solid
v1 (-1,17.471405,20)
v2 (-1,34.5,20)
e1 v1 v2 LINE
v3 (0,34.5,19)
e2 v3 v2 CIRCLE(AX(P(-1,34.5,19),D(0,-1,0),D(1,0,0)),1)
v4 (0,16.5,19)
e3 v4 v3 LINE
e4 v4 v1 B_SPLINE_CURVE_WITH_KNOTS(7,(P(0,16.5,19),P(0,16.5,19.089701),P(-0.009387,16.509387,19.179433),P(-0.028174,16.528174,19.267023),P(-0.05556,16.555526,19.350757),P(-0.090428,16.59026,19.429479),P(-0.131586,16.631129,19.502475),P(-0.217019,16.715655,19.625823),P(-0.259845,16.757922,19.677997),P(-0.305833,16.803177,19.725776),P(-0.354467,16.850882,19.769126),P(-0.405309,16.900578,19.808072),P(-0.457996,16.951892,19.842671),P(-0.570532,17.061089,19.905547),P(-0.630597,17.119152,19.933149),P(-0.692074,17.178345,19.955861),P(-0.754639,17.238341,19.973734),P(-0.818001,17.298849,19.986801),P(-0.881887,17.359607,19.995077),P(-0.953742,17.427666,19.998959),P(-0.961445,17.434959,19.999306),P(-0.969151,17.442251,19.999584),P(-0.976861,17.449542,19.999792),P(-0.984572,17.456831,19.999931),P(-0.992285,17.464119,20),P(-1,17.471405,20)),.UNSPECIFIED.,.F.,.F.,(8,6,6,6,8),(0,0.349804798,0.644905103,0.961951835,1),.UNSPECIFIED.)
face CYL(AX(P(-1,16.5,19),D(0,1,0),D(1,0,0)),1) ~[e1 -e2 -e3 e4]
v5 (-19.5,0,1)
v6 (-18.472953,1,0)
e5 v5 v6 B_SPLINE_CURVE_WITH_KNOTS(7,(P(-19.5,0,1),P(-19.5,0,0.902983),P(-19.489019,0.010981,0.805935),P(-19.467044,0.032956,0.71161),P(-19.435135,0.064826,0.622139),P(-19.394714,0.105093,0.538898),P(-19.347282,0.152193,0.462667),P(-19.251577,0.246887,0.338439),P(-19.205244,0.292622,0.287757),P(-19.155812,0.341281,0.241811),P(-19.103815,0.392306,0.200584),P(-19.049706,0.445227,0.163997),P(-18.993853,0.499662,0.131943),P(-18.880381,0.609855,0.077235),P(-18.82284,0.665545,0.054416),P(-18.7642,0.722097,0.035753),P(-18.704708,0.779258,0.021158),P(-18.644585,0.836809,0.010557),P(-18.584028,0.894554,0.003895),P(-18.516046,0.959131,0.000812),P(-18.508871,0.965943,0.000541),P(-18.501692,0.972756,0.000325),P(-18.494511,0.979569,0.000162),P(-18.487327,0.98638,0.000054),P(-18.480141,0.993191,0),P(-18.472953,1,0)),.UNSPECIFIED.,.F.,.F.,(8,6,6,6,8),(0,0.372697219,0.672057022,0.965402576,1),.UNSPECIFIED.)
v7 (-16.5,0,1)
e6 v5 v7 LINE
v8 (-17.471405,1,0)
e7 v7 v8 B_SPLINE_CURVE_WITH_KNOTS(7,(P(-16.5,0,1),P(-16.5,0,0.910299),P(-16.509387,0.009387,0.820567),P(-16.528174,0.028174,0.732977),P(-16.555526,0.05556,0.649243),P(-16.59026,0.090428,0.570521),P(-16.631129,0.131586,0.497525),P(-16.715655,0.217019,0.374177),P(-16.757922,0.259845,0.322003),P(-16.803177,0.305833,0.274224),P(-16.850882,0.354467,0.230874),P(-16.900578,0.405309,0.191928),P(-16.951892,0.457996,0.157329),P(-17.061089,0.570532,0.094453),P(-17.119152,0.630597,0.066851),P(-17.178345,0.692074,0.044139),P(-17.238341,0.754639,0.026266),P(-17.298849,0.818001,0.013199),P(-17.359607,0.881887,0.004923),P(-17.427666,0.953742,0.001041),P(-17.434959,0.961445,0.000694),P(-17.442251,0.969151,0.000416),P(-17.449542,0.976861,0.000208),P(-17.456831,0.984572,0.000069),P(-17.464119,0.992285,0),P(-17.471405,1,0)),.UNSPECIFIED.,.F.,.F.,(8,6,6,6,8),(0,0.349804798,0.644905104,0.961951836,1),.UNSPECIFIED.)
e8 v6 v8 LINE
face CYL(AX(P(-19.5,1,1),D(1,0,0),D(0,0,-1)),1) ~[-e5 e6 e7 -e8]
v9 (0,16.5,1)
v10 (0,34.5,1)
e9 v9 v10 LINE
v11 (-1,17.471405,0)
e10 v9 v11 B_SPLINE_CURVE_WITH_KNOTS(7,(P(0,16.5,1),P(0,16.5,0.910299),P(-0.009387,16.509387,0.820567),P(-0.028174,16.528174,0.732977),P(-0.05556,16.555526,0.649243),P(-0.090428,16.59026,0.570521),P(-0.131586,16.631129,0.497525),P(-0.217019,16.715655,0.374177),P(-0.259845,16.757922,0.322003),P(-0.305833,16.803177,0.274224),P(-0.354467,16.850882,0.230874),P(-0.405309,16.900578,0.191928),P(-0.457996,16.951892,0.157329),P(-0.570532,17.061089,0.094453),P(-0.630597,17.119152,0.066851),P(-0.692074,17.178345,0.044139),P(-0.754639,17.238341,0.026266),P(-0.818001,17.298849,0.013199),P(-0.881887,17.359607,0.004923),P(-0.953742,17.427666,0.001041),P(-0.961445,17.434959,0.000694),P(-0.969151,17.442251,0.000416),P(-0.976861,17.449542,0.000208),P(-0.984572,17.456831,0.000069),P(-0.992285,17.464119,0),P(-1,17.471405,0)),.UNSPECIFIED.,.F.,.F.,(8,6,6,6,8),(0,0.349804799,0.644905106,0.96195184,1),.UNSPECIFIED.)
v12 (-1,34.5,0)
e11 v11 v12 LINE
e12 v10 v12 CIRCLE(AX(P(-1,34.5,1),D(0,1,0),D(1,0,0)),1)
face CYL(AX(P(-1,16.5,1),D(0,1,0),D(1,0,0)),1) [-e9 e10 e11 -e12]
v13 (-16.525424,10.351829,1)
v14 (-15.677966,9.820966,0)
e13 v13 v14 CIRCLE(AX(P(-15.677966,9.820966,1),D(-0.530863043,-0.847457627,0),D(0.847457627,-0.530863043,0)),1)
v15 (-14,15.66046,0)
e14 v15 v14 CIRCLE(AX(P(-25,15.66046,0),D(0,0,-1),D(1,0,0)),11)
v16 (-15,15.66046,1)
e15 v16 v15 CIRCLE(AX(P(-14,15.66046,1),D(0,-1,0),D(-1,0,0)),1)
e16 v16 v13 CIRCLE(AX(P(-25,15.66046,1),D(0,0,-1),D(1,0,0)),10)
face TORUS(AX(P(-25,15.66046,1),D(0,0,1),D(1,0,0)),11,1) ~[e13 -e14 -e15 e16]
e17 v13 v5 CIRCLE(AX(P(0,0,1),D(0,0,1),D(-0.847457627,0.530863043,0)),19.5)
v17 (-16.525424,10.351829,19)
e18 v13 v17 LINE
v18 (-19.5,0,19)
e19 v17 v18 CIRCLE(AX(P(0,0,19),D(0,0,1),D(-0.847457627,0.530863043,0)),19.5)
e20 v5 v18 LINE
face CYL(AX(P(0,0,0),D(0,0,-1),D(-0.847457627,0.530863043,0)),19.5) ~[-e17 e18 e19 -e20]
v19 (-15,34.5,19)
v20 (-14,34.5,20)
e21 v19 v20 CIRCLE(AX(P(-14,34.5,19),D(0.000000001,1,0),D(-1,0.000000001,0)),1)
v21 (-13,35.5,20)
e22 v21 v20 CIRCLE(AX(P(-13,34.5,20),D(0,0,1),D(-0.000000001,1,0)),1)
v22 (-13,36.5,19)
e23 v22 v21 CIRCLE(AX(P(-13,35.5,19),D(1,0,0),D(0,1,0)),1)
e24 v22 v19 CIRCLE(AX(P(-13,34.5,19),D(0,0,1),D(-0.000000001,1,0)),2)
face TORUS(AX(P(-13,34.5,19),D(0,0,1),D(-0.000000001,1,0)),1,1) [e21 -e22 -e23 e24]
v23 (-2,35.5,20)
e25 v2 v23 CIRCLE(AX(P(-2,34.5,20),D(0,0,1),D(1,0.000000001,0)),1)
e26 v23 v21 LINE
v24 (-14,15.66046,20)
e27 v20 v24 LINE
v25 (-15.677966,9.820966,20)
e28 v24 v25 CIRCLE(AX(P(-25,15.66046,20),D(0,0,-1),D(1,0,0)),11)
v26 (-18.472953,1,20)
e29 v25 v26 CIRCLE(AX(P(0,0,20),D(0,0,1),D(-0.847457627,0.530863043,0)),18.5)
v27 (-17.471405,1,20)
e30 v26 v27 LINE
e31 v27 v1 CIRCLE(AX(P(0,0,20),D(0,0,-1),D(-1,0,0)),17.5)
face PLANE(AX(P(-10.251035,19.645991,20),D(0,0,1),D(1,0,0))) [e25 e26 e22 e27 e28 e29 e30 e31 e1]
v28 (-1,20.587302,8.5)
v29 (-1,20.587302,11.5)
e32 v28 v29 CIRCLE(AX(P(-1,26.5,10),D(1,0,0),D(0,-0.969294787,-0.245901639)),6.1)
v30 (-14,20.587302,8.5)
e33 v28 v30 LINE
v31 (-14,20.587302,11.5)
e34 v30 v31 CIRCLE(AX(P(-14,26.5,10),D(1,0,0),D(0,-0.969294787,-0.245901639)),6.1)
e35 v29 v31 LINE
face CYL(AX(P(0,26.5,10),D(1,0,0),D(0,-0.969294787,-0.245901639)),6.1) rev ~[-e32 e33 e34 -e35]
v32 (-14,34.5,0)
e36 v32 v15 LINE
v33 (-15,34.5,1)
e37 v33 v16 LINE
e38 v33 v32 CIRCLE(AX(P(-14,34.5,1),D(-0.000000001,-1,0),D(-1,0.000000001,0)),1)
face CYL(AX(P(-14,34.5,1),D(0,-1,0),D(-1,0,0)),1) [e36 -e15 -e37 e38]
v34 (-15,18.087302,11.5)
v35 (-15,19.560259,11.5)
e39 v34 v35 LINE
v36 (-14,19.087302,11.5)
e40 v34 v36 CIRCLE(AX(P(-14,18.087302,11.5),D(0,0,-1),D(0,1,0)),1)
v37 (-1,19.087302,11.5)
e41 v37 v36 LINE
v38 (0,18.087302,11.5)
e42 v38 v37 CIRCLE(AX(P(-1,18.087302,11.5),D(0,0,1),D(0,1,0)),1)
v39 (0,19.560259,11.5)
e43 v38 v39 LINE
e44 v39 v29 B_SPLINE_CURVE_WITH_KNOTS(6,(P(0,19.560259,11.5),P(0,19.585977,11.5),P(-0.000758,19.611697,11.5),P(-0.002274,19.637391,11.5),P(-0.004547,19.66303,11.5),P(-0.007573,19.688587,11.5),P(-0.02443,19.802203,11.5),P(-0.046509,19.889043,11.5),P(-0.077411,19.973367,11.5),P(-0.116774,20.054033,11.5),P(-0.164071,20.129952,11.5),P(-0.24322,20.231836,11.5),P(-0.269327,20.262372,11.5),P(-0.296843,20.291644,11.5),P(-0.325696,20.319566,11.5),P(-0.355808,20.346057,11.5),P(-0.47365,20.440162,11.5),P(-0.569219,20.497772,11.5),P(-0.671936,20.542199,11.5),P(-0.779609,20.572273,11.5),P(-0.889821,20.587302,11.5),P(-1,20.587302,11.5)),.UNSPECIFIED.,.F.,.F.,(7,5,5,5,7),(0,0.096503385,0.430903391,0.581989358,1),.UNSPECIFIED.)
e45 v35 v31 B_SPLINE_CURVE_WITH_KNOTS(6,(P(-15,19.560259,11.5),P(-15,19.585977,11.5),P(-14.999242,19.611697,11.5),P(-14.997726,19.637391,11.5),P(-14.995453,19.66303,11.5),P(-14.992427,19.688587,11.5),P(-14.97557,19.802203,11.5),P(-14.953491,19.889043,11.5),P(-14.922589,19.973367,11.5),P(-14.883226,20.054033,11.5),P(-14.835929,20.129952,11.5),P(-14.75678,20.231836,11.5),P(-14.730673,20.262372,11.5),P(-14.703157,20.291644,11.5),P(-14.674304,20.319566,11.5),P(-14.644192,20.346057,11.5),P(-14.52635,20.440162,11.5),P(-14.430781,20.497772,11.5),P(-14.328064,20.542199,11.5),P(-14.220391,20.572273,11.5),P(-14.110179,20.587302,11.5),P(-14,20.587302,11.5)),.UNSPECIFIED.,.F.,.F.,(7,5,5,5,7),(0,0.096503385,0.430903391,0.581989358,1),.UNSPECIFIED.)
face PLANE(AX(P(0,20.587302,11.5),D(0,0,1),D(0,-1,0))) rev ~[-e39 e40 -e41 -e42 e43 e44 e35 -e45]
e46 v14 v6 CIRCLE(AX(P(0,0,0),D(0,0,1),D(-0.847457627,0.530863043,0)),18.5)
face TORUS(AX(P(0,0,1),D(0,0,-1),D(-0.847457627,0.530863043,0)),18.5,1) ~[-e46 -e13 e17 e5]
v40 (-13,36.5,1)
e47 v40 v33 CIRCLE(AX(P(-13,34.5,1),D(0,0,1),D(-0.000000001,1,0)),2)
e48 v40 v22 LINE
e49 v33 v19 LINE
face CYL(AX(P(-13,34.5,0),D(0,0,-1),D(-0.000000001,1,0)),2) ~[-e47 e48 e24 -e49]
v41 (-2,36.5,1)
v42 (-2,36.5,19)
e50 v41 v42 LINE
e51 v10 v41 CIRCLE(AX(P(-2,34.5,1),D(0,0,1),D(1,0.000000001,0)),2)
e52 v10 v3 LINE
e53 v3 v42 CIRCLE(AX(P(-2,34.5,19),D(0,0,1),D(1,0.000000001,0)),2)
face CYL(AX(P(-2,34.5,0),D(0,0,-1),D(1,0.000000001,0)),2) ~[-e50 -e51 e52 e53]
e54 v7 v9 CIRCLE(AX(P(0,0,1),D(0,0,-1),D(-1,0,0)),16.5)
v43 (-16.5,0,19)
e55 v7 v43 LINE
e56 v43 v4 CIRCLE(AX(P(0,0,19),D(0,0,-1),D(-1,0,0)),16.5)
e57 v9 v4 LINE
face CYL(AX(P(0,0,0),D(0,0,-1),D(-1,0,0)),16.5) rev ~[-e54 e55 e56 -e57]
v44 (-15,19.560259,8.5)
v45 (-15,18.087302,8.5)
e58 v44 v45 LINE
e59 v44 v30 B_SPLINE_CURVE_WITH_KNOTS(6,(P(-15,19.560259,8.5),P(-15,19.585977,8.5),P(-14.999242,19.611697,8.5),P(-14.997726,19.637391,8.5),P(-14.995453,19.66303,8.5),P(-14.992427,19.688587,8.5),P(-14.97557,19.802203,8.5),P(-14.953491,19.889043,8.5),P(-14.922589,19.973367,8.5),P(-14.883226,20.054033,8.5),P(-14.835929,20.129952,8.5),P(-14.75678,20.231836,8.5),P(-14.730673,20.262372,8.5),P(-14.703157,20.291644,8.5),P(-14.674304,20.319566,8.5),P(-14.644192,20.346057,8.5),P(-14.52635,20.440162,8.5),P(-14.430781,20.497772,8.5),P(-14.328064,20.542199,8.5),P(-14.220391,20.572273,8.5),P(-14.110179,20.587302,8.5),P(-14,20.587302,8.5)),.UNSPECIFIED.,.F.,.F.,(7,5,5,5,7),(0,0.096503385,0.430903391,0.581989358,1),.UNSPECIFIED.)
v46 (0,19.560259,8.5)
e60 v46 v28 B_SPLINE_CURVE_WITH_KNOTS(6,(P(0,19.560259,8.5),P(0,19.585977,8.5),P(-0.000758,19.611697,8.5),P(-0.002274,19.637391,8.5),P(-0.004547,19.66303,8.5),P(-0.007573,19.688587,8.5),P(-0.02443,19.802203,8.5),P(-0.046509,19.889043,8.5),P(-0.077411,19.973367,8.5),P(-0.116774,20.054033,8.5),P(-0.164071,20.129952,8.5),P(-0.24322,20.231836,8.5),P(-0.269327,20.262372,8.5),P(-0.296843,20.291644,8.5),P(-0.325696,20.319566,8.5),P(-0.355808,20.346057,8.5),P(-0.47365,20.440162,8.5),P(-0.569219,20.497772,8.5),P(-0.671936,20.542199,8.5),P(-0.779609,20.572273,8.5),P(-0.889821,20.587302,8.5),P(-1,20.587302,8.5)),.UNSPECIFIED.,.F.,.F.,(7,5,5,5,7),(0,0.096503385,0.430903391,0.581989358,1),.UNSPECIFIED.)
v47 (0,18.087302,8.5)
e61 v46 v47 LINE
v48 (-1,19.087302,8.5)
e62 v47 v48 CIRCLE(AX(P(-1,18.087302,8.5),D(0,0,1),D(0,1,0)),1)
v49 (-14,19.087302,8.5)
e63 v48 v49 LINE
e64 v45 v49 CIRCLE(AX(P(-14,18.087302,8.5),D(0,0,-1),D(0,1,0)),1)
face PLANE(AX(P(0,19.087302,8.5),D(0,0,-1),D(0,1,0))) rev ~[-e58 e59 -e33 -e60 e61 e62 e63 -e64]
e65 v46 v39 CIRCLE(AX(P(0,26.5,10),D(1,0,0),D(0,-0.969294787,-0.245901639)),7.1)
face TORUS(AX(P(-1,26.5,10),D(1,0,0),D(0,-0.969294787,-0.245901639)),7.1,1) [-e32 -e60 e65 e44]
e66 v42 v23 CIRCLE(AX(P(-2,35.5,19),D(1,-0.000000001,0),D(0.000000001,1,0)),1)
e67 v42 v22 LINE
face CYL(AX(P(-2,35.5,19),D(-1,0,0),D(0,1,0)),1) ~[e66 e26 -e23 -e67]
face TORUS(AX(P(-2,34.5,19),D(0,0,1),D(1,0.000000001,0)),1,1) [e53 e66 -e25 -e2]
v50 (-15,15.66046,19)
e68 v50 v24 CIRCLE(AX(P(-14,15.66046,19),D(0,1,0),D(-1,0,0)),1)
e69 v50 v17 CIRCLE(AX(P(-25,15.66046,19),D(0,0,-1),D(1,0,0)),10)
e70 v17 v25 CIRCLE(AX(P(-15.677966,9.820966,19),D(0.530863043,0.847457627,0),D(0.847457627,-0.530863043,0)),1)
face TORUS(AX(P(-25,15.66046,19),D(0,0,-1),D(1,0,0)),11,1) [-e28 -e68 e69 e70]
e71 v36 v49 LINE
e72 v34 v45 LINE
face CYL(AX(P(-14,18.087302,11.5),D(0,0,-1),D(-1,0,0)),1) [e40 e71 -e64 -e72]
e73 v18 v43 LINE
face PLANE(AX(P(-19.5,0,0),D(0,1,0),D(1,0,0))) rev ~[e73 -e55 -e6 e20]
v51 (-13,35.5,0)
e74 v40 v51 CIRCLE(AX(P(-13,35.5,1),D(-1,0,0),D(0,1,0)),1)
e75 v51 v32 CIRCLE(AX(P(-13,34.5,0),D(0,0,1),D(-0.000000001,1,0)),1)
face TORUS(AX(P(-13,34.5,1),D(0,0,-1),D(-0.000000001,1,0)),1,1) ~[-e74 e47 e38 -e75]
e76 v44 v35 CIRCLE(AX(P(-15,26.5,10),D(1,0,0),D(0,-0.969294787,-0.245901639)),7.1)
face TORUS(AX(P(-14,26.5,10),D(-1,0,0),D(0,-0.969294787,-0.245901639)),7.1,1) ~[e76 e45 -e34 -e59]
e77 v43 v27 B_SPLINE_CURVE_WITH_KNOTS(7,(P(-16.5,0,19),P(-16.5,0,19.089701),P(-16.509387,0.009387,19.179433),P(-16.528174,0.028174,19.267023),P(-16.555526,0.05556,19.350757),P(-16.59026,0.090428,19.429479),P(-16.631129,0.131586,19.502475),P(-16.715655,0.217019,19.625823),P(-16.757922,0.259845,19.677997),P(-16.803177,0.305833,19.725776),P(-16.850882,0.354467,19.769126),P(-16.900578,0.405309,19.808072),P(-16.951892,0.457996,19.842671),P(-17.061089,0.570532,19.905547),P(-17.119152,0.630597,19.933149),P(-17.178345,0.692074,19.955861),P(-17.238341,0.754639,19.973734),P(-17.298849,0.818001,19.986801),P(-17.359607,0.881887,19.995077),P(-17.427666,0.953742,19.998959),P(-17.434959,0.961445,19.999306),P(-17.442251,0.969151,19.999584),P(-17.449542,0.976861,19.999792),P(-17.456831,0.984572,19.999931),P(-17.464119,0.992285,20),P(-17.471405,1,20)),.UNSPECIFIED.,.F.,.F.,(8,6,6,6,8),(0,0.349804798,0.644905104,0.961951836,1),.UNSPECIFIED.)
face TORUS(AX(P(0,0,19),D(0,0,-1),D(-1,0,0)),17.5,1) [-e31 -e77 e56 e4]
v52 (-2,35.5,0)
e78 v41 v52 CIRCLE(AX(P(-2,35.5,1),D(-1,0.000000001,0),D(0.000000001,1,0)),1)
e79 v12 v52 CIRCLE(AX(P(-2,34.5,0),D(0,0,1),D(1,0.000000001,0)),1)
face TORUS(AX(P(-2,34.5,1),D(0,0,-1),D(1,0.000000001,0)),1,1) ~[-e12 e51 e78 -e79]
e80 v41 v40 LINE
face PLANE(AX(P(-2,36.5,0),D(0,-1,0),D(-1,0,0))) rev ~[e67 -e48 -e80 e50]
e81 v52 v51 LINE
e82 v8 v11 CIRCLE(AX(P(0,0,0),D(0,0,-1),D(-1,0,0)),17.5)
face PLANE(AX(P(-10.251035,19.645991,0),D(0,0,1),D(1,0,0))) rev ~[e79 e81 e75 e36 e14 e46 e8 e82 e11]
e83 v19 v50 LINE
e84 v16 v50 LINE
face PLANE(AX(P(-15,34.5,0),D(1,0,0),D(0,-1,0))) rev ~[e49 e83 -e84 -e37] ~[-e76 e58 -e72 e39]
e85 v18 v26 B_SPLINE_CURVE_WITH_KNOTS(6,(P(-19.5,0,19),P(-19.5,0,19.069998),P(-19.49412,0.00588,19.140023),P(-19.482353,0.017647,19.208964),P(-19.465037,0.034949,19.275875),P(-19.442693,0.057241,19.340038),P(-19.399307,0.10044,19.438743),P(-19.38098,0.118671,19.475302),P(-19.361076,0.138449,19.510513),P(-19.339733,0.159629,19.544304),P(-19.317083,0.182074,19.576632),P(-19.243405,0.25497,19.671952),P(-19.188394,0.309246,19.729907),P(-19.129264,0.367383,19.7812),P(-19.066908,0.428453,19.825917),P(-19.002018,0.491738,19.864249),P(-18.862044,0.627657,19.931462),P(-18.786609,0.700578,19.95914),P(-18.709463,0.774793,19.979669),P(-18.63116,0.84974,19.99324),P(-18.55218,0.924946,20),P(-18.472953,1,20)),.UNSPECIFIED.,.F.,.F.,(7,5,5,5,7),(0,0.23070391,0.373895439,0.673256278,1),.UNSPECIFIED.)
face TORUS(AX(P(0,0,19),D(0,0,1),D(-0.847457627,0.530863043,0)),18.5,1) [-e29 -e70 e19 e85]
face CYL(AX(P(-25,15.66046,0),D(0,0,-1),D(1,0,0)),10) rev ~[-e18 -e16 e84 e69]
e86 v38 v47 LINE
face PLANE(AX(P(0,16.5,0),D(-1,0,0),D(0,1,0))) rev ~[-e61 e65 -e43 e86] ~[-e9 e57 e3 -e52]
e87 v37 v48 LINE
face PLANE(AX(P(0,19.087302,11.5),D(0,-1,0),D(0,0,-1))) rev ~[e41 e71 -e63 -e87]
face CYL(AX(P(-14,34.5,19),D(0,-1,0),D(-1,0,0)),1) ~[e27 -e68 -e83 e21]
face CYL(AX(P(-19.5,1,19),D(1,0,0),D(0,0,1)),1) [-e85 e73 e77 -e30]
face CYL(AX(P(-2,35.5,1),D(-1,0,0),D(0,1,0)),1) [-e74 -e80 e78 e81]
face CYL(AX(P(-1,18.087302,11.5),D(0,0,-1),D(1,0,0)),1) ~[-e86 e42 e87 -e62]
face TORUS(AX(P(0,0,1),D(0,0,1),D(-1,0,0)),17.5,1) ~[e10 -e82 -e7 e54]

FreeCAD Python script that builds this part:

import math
import FreeCAD as App
import Part
import Sketcher

V = App.Vector


def edges_at(feature, points):
    """Names of the edges that pass closest to the given points."""
    edges = feature.Shape.Edges
    near = lambda p: min(range(len(edges)), key=lambda i: edges[i].distToShape(Part.Vertex(*p))[0])
    return sorted({f"Edge{near(p) + 1}" for p in points})

doc = App.newDocument("Part")
body = doc.addObject("PartDesign::Body", "Body")

sketch1 = body.newObject("Sketcher::SketchObject", "Sketch")
sketch1.AttachmentSupport = (doc.getObject("XY_Plane"), [""])
sketch1.MapMode = "FlatFace"
sketch1.addGeometry(Part.LineSegment(V(-19.5, 0, 0), V(-16.5, 0, 0)), False)
sketch1.addGeometry(Part.ArcOfCircle(Part.Circle(V(0, 0, 0), V(0, 0, 1), 16.5), math.radians(90), math.radians(180)), False)
sketch1.addGeometry(Part.LineSegment(V(0, 16.5, 0), V(0, 34.5, 0)), False)
sketch1.addGeometry(Part.ArcOfCircle(Part.Circle(V(-2, 34.5, 0), V(0, 0, 1), 2), math.radians(0), math.radians(90)), False)
sketch1.addGeometry(Part.LineSegment(V(-2, 36.5, 0), V(-13, 36.5, 0)), False)
sketch1.addGeometry(Part.ArcOfCircle(Part.Circle(V(-13, 34.5, 0), V(0, 0, 1), 2), math.radians(90), math.radians(180)), False)
sketch1.addGeometry(Part.LineSegment(V(-15, 34.5, 0), V(-15, 15.7, 0)), False)
sketch1.addGeometry(Part.ArcOfCircle(Part.Circle(V(-25, 15.7, 0), V(0, 0, 1), 10), math.radians(-32), math.radians(0)), False)
sketch1.addGeometry(Part.ArcOfCircle(Part.Circle(V(0, 0, 0), V(0, 0, 1), 19.5), math.radians(148), math.radians(180)), False)
sketch1.addConstraint(Sketcher.Constraint("Coincident", 0, 2, 1, 2))
sketch1.addConstraint(Sketcher.Constraint("Coincident", 1, 1, 2, 1))
sketch1.addConstraint(Sketcher.Constraint("Tangent", 2, 2, 3, 1))
sketch1.addConstraint(Sketcher.Constraint("Tangent", 3, 2, 4, 1))
sketch1.addConstraint(Sketcher.Constraint("Tangent", 4, 2, 5, 1))
sketch1.addConstraint(Sketcher.Constraint("Tangent", 5, 2, 6, 1))
sketch1.addConstraint(Sketcher.Constraint("Tangent", 6, 2, 7, 2))
sketch1.addConstraint(Sketcher.Constraint("Tangent", 7, 1, 8, 1))
sketch1.addConstraint(Sketcher.Constraint("Coincident", 8, 2, 0, 1))
sketch1.addConstraint(Sketcher.Constraint("Horizontal", 0))
sketch1.addConstraint(Sketcher.Constraint("Vertical", 2))
sketch1.addConstraint(Sketcher.Constraint("Horizontal", 4))
sketch1.addConstraint(Sketcher.Constraint("Vertical", 6))
sketch1.addConstraint(Sketcher.Constraint("Coincident", 1, 3, -1, 1))
sketch1.addConstraint(Sketcher.Constraint("Coincident", 8, 3, -1, 1))
sketch1.addConstraint(Sketcher.Constraint("Equal", 3, 5))
sketch1.addConstraint(Sketcher.Constraint("PointOnObject", 0, 2, -1))
sketch1.addConstraint(Sketcher.Constraint("PointOnObject", 1, 1, -2))
sketch1.addConstraint(Sketcher.Constraint("Radius", 3, 2.0))
sketch1.addConstraint(Sketcher.Constraint("Radius", 7, 10.0))
sketch1.addConstraint(Sketcher.Constraint("Radius", 1, 16.5))
sketch1.addConstraint(Sketcher.Constraint("Radius", 8, 19.5))
sketch1.addConstraint(Sketcher.Constraint("DistanceX", 4, 2, 4, 1, 11.0))
sketch1.addConstraint(Sketcher.Constraint("DistanceY", 2, 1, 2, 2, 18.0))
pad1 = body.newObject("PartDesign::Pad", "Pad")
pad1.Profile = sketch1
pad1.Length = 20

sketch2 = body.newObject("Sketcher::SketchObject", "Sketch001")
sketch2.AttachmentSupport = (doc.getObject("YZ_Plane"), [""])
sketch2.MapMode = "FlatFace"
sketch2.addGeometry(Part.LineSegment(V(19.1, 11.5, 0), V(19.1, 8.5, 0)), False)
sketch2.addGeometry(Part.LineSegment(V(19.1, 8.5, 0), V(20.6, 8.5, 0)), False)
sketch2.addGeometry(Part.ArcOfCircle(Part.Circle(V(26.5, 10, 0), V(0, 0, 1), 6.1), math.radians(-166), math.radians(166)), False)
sketch2.addGeometry(Part.LineSegment(V(20.6, 11.5, 0), V(19.1, 11.5, 0)), False)
sketch2.addConstraint(Sketcher.Constraint("Coincident", 0, 2, 1, 1))
sketch2.addConstraint(Sketcher.Constraint("Coincident", 1, 2, 2, 1))
sketch2.addConstraint(Sketcher.Constraint("Coincident", 2, 2, 3, 1))
sketch2.addConstraint(Sketcher.Constraint("Coincident", 3, 2, 0, 1))
sketch2.addConstraint(Sketcher.Constraint("Vertical", 0))
sketch2.addConstraint(Sketcher.Constraint("Horizontal", 1))
sketch2.addConstraint(Sketcher.Constraint("Horizontal", 3))
sketch2.addConstraint(Sketcher.Constraint("Vertical", 1, 2, 2, 2))
sketch2.addConstraint(Sketcher.Constraint("Radius", 2, 6.1))
sketch2.addConstraint(Sketcher.Constraint("DistanceY", 0, 2, 0, 1, 3.0))
sketch2.addConstraint(Sketcher.Constraint("DistanceX", 1, 1, 1, 2, 1.5))
sketch2.addConstraint(Sketcher.Constraint("DistanceY", -1, 1, 2, 3, 10.0))
sketch2.addConstraint(Sketcher.Constraint("DistanceX", -1, 1, 2, 3, 26.5))
pocket1 = body.newObject("PartDesign::Pocket", "Pocket")
pocket1.Profile = sketch2
pocket1.Type = "ThroughAll"
doc.recompute()

fillet = body.newObject("PartDesign::Fillet", "Fillet")
fillet.Base = (pocket1, edges_at(pocket1, [(-15, 19.087, 10), (0, 19.087, 10)]))
fillet.Radius = 1
doc.recompute()

fillet2 = body.newObject("PartDesign::Fillet", "Fillet001")
fillet2.Base = (fillet, edges_at(fillet, [(-15, 32.6, 10), (0, 32.6, 10)]))
fillet2.Radius = 1
doc.recompute()

fillet3 = body.newObject("PartDesign::Fillet", "Fillet002")
fillet3.Base = (fillet2, edges_at(fillet2, [
    (-11.667, 11.667, 20),
    (-0.586, 35.914, 0),
    (0, 25.5, 0),
    (-11.667, 11.667, 0),
    (-18, 0, 0),
    (-18.742, 5.385, 0),
    (0, 25.5, 20),
    (-0.586, 35.914, 20),
    (-7.5, 36.5, 20),
    (-14.414, 35.914, 20),
    (-15, 25.08, 20),
    (-15.389, 12.899, 20),
    (-18.742, 5.385, 20),
    (-18, 0, 20),
    (-15.389, 12.899, 0),
    (-15, 25.08, 0),
    (-14.414, 35.914, 0),
    (-7.5, 36.5, 0),
]))
fillet3.Radius = 1

doc.recompute()
